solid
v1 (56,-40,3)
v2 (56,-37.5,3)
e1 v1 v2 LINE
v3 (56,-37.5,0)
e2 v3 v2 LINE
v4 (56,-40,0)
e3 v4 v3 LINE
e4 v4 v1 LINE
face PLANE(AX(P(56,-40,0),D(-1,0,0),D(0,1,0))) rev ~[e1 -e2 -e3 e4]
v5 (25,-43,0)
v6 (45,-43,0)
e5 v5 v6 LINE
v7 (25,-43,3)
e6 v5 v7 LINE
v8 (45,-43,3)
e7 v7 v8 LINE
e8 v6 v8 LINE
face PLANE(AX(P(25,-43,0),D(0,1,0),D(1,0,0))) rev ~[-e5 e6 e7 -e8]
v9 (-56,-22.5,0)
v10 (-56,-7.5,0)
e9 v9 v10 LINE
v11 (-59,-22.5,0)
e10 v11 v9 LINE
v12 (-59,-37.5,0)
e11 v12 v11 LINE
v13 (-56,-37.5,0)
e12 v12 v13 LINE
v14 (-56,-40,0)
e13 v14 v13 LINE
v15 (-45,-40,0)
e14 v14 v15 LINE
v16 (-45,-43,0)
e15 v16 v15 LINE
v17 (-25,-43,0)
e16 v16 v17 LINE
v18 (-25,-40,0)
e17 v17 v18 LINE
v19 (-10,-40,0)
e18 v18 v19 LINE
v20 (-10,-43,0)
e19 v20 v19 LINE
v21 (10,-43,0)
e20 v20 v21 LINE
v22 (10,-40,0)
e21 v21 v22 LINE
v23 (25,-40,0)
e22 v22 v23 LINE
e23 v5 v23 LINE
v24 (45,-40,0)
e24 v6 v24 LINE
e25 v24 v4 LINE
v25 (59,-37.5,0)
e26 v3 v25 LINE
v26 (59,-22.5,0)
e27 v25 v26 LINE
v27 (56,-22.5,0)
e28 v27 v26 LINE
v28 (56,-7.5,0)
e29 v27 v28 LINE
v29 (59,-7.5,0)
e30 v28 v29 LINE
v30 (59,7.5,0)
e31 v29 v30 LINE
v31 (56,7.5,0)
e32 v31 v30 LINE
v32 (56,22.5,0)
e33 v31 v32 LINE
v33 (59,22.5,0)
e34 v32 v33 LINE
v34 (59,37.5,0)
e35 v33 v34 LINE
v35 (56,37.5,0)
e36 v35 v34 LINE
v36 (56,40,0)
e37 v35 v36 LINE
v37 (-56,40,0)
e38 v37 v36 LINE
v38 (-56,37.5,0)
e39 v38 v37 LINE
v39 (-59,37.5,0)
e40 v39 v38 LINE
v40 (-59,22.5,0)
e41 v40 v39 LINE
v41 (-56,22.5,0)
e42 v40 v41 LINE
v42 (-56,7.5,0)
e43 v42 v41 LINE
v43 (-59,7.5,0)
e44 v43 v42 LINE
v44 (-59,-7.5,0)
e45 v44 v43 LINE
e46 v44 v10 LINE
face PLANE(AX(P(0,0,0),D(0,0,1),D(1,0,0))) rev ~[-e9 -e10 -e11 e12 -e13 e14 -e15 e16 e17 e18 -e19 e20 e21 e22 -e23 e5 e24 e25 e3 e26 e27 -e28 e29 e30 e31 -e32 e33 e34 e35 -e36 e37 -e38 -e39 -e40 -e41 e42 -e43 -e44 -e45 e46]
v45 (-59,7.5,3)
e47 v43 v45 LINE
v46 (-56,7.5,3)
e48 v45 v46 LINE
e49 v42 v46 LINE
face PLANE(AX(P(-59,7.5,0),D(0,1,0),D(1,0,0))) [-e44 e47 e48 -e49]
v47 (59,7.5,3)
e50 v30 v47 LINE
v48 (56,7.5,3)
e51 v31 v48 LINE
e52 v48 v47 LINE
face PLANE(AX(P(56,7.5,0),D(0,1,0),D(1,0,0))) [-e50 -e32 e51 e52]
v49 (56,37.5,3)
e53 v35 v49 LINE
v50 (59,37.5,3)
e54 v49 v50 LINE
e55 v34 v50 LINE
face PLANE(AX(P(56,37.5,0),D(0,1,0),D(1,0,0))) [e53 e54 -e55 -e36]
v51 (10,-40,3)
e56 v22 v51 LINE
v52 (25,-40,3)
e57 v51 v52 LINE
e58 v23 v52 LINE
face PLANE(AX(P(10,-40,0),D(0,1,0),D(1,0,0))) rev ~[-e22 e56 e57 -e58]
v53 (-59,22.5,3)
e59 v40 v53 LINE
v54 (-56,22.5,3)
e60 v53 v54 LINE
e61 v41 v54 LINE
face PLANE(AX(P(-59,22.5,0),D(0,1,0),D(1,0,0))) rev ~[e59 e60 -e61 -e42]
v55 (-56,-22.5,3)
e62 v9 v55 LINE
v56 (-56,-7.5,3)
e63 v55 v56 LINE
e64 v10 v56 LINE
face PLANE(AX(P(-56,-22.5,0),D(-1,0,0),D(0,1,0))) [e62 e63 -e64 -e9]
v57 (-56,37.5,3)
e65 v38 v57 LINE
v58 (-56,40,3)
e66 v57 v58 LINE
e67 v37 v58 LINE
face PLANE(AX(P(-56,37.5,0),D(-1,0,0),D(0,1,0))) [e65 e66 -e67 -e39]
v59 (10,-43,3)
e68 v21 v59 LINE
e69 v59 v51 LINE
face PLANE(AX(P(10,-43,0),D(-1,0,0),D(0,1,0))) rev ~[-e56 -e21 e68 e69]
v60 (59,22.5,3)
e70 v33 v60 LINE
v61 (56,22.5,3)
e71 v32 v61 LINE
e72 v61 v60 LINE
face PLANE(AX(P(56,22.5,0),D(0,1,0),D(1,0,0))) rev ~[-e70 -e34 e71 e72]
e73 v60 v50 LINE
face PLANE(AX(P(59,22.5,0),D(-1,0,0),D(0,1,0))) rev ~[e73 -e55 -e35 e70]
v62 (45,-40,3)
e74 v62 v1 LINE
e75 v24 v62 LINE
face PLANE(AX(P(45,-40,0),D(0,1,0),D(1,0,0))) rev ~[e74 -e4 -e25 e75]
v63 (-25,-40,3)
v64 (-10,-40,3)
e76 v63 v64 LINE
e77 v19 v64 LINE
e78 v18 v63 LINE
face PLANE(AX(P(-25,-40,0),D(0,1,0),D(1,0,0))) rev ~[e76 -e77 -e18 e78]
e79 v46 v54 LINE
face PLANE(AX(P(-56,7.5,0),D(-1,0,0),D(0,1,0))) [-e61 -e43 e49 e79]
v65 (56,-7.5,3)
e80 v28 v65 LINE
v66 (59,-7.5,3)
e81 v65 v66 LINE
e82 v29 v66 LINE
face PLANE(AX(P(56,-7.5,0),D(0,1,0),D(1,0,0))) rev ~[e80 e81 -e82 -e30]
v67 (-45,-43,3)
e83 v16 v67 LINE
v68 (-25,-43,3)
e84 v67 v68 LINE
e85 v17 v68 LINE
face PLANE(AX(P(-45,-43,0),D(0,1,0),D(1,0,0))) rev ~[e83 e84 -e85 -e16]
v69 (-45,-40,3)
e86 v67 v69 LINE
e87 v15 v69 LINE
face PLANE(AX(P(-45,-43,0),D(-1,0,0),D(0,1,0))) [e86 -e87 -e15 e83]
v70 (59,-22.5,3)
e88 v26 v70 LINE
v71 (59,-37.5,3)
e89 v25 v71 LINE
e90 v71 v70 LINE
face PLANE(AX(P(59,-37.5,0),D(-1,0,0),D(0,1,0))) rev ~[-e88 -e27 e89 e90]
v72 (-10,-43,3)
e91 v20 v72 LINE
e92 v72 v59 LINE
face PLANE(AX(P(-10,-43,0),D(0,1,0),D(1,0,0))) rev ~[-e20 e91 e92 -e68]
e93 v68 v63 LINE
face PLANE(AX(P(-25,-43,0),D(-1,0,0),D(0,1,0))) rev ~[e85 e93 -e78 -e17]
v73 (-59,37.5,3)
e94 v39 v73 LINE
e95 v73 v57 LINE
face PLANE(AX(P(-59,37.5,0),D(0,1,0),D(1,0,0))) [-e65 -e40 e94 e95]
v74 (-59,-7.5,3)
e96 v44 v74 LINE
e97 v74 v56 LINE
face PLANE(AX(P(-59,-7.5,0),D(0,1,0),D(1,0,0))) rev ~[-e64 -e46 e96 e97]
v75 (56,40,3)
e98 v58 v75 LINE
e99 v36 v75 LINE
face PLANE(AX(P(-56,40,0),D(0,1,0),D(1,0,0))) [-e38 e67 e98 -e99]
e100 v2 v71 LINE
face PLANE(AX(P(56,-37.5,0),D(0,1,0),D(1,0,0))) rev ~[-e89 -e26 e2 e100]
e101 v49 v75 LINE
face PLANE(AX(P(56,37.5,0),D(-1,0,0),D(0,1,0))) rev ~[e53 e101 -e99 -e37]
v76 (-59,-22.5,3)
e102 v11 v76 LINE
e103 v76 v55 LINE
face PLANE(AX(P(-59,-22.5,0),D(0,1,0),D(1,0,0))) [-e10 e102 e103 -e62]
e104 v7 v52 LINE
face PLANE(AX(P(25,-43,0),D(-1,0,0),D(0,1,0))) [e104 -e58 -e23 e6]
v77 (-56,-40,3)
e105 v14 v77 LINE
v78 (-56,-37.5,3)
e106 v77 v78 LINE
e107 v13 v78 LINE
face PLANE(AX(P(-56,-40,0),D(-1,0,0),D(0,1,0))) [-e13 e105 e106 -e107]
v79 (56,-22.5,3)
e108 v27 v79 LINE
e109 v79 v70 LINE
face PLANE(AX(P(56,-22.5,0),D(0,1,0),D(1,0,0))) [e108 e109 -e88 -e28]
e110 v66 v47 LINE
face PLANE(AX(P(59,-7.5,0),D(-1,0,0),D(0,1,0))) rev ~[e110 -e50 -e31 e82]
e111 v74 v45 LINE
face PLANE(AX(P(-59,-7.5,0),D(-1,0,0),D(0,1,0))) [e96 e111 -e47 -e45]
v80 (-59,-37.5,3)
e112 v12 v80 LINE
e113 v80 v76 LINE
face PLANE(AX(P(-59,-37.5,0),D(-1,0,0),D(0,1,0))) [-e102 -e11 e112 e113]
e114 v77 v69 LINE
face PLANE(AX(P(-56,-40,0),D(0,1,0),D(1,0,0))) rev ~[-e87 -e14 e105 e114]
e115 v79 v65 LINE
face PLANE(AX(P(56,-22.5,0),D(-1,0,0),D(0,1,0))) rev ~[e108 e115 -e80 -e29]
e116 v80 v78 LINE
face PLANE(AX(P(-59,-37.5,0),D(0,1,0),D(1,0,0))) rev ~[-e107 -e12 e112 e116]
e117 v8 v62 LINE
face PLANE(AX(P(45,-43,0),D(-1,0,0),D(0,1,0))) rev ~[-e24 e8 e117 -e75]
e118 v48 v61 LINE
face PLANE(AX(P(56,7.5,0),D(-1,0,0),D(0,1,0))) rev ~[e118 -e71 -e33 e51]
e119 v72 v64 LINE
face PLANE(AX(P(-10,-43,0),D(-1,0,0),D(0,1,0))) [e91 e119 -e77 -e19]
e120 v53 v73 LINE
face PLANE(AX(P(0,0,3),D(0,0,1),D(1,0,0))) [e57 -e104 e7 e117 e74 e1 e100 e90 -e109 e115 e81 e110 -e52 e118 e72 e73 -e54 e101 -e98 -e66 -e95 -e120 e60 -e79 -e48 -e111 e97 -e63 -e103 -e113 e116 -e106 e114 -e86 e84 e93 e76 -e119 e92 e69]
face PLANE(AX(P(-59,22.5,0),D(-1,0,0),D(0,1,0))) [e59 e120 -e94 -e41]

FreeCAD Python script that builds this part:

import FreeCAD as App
import Part
import Sketcher
from FreeCAD import Vector


def add_polygon(sketch, points):
    """Adds a closed chain of lines whose ends are joined by coincident constraints."""
    first, n = sketch.GeometryCount, len(points)
    for a, b in zip(points, points[1:] + points[:1]):
        sketch.addGeometry(Part.LineSegment(App.Vector(*a, 0), App.Vector(*b, 0)), False)
    for i in range(n):
        sketch.addConstraint(Sketcher.Constraint("Coincident", first + i, 2, first + (i + 1) % n, 1))

doc = App.newDocument("Part")
body = doc.addObject("PartDesign::Body", "Body")

# Sketch on XY plane
sketch1 = body.newObject("Sketcher::SketchObject", "Sketch")
sketch1.AttachmentSupport = (doc.getObject("XY_Plane"), [""])
sketch1.MapMode = "FlatFace"
add_polygon(sketch1, [(-56, -37.5), (-56, -40), (-45, -40), (-45, -43), (-25, -43), (-25, -40), (-10, -40), (-10, -43), (10, -43), (10, -40), (25, -40), (25, -43), (45, -43), (45, -40), (56, -40), (56, -37.5), (59, -37.5), (59, -22.5), (56, -22.5), (56, -7.5), (59, -7.5), (59, 7.5), (56, 7.5), (56, 22.5), (59, 22.5), (59, 37.5), (56, 37.5), (56, 40), (-56, 40), (-56, 37.5), (-59, 37.5), (-59, 22.5), (-56, 22.5), (-56, 7.5), (-59, 7.5), (-59, -7.5), (-56, -7.5), (-56, -22.5), (-59, -22.5), (-59, -37.5)])  # lines 0-39
sketch1.addConstraint([
    Sketcher.Constraint("Vertical", 0),
    Sketcher.Constraint("Horizontal", 1),
    Sketcher.Constraint("Vertical", 2),
    Sketcher.Constraint("Horizontal", 3),
    Sketcher.Constraint("Vertical", 4),
    Sketcher.Constraint("Horizontal", 5),
    Sketcher.Constraint("Vertical", 6),
    Sketcher.Constraint("Horizontal", 7),
    Sketcher.Constraint("Vertical", 8),
    Sketcher.Constraint("Horizontal", 9),
    Sketcher.Constraint("Vertical", 10),
    Sketcher.Constraint("Horizontal", 11),
    Sketcher.Constraint("Vertical", 12),
    Sketcher.Constraint("Horizontal", 13),
    Sketcher.Constraint("Vertical", 14),
    Sketcher.Constraint("Horizontal", 15),
    Sketcher.Constraint("Vertical", 16),
    Sketcher.Constraint("Horizontal", 17),
    Sketcher.Constraint("Vertical", 18),
    Sketcher.Constraint("Horizontal", 19),
    Sketcher.Constraint("Vertical", 20),
    Sketcher.Constraint("Horizontal", 21),
    Sketcher.Constraint("Vertical", 22),
    Sketcher.Constraint("Horizontal", 23),
    Sketcher.Constraint("Vertical", 24),
    Sketcher.Constraint("Horizontal", 25),
    Sketcher.Constraint("Vertical", 26),
    Sketcher.Constraint("Horizontal", 27),
    Sketcher.Constraint("Vertical", 28),
    Sketcher.Constraint("Horizontal", 29),
    Sketcher.Constraint("Vertical", 30),
    Sketcher.Constraint("Horizontal", 31),
    Sketcher.Constraint("Vertical", 32),
    Sketcher.Constraint("Horizontal", 33),
    Sketcher.Constraint("Vertical", 34),
    Sketcher.Constraint("Horizontal", 35),
    Sketcher.Constraint("Vertical", 36),
    Sketcher.Constraint("Horizontal", 37),
    Sketcher.Constraint("Vertical", 38),
    Sketcher.Constraint("Horizontal", 39),
    Sketcher.Constraint("Symmetric", 0, 2, 26, 2, -1, 1),
    Sketcher.Constraint("Symmetric", 13, 2, 27, 2, -1, 1),
    Sketcher.Constraint("Symmetric", 15, 2, 29, 2, -1, 1),
    Sketcher.Constraint("Symmetric", 17, 2, 31, 2, -1, 1),
    Sketcher.Constraint("Symmetric", 19, 2, 33, 2, -1, 1),
    Sketcher.Constraint("Symmetric", 21, 2, 35, 2, -1, 1),
    Sketcher.Constraint("Symmetric", 23, 2, 37, 2, -1, 1),
    Sketcher.Constraint("Symmetric", 5, 2, 8, 2, -2),
    Sketcher.Constraint("Symmetric", 3, 2, 10, 2, -2),
    Sketcher.Constraint("Symmetric", 25, 2, 28, 2, -2),
    Sketcher.Constraint("Symmetric", 23, 2, 30, 2, -2),
    Sketcher.Constraint("Symmetric", 21, 2, 32, 2, -2),
    Sketcher.Constraint("Horizontal", 1, 2, 4, 2),
    Sketcher.Constraint("Horizontal", 3, 2, 6, 2),
    Sketcher.Constraint("Horizontal", 15, 2, 38, 2),
    Sketcher.Constraint("Vertical", 14, 2, 17, 2),
    Sketcher.Constraint("Vertical", 16, 2, 19, 2),
    Sketcher.Constraint("Equal", 3, 7),
    Sketcher.Constraint("Equal", 7, 11),
    Sketcher.Constraint("Equal", 39, 2),
    Sketcher.Constraint("Equal", 9, 16),
    Sketcher.Constraint("Equal", 16, 18),
    Sketcher.Constraint("Equal", 18, 20),
    Sketcher.Constraint("DistanceX", 1, 1, 1, 2, 11.0),
    Sketcher.Constraint("DistanceX", 3, 1, 3, 2, 20.0),
    Sketcher.Constraint("DistanceX", 5, 1, 5, 2, 15.0),
    Sketcher.Constraint("DistanceX", 15, 1, 15, 2, 3.0),
    Sketcher.Constraint("DistanceY", 0, 2, 0, 1, 2.5),
])
pad1 = body.newObject("PartDesign::Pad", "Pad")
pad1.Profile = sketch1
pad1.Length = 3

doc.recompute()
